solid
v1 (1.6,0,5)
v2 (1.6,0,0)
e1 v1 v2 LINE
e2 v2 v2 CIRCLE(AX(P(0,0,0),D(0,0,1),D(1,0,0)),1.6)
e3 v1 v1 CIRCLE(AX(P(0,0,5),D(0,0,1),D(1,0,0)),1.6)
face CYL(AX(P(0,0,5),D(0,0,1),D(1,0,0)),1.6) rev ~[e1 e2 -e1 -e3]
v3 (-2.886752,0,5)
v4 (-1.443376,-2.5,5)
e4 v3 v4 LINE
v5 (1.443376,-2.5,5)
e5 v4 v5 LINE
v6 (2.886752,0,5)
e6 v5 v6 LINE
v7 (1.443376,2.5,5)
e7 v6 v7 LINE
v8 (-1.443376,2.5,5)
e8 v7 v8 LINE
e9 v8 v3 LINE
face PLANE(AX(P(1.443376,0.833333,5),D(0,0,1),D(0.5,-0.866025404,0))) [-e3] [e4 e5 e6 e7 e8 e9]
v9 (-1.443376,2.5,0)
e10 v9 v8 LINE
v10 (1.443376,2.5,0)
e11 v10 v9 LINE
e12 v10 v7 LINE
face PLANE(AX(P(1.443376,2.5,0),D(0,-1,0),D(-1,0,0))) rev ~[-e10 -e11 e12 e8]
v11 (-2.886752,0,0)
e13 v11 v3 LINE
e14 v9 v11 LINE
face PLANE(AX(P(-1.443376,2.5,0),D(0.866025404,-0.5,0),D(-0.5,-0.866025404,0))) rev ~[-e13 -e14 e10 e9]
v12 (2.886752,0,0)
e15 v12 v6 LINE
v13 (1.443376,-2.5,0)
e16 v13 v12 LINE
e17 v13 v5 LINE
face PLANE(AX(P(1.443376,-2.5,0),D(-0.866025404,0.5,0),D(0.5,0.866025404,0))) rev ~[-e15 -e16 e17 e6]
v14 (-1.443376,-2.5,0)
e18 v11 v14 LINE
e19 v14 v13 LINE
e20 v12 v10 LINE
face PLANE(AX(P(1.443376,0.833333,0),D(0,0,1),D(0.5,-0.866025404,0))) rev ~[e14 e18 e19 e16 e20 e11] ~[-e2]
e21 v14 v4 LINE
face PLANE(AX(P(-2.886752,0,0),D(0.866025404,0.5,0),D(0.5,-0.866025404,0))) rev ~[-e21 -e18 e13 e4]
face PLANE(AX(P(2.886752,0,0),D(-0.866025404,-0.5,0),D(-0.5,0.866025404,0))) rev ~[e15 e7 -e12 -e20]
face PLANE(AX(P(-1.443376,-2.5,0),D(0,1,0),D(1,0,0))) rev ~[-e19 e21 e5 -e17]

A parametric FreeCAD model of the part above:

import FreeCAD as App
import Part
import Sketcher
Q = App.Units.Quantity

doc = App.newDocument("Part")
params = doc.addObject("Spreadsheet::Sheet", "Params")
for row, (alias, value) in enumerate([
    ("pad1_length", "5 mm"),
    ("sketch2_diameter", "3.2 mm"),
], start=1):
    params.set(f"A{row}", alias)
    params.set(f"B{row}", "=" + value)
    params.setAlias(f"B{row}", alias)

body = doc.addObject("PartDesign::Body", "Body")

sketch1 = body.newObject("Sketcher::SketchObject", "Sketch")
sketch1.AttachmentSupport = (doc.getObject("XY_Plane"), [""])
sketch1.MapMode = "FlatFace"
sketch1.addGeometry([
    Part.LineSegment(App.Vector(-1.4, 2.5, 0), App.Vector(0, 0, 0)),
    Part.LineSegment(App.Vector(0, 0, 0), App.Vector(1.4, 2.5, 0)),
    Part.LineSegment(App.Vector(1.4, 2.5, 0), App.Vector(-1.4, 2.5, 0)),
], False)
sketch1.addConstraint([
    Sketcher.Constraint("Coincident", 0, 2, 1, 1),
    Sketcher.Constraint("Coincident", 1, 2, 2, 1),
    Sketcher.Constraint("Coincident", 2, 2, 0, 1),
    Sketcher.Constraint("Horizontal", 2),
    Sketcher.Constraint("Coincident", 0, 2, -1, 1),
    Sketcher.Constraint("Equal", 0, 1),
    Sketcher.Constraint("Angle", 0, Q("-59.999994 deg")),
    Sketcher.Constraint("DistanceY", -1, 1, 1, 2, Q("2.5 mm")),
])
pad1 = body.newObject("PartDesign::Pad", "Pad")
pad1.Profile = sketch1
pad1.setExpression("Length", "Params.pad1_length")
body2 = doc.addObject("PartDesign::Body", "Body001")
doc.recompute()

body2.BaseFeature = body
doc.recompute()

body3 = doc.addObject("PartDesign::Body", "Body002")
body3.BaseFeature = body
body3.Placement = App.Placement(App.Vector(0, 0, 0), App.Rotation(App.Vector(0, 0, 1), 60))
boolean = body2.newObject("PartDesign::Boolean", "Boolean")
boolean.Type = "Fuse"
boolean.addObjects([body3])
doc.recompute()

body4 = doc.addObject("PartDesign::Body", "Body003")
body4.BaseFeature = body
body4.Placement = App.Placement(App.Vector(0, 0, 0), App.Rotation(App.Vector(0, 0, 1), 120))
boolean2 = body2.newObject("PartDesign::Boolean", "Boolean001")
boolean2.Type = "Fuse"
boolean2.addObjects([body4])
doc.recompute()

body5 = doc.addObject("PartDesign::Body", "Body004")
body5.BaseFeature = body
body5.Placement = App.Placement(App.Vector(0, 0, 0), App.Rotation(App.Vector(0, 0, 1), 180))
boolean3 = body2.newObject("PartDesign::Boolean", "Boolean002")
boolean3.Type = "Fuse"
boolean3.addObjects([body5])
doc.recompute()

body6 = doc.addObject("PartDesign::Body", "Body005")
body6.BaseFeature = body
body6.Placement = App.Placement(App.Vector(0, 0, 0), App.Rotation(App.Vector(0, 0, 1), 240))
boolean4 = body2.newObject("PartDesign::Boolean", "Boolean003")
boolean4.Type = "Fuse"
boolean4.addObjects([body6])
doc.recompute()

body.Placement = App.Placement(App.Vector(0, 0, 0), App.Rotation(App.Vector(0, 0, 1), 300))
boolean5 = body2.newObject("PartDesign::Boolean", "Boolean004")
boolean5.Type = "Fuse"
boolean5.addObjects([body])

sketch2 = body2.newObject("Sketcher::SketchObject", "Sketch001")
sketch2.AttachmentSupport = (doc.getObject("XY_Plane001"), [""])
sketch2.MapMode = "FlatFace"
sketch2.AttachmentOffset = App.Placement(App.Vector(0, 0, 5), App.Rotation())
sketch2.addGeometry(Part.Circle(App.Vector(0, 0, 0), App.Vector(0, 0, 1), 1.6), False)
sketch2.addConstraint([
    Sketcher.Constraint("Coincident", 0, 3, -1, 1),
    Sketcher.Constraint("Diameter", 0, Q("3.2 mm")),
])
sketch2.setExpression("Constraints[1]", "Params.sketch2_diameter")
pocket1 = body2.newObject("PartDesign::Pocket", "Pocket")
pocket1.Profile = sketch2
pocket1.Type = "ThroughAll"

doc.recompute()
